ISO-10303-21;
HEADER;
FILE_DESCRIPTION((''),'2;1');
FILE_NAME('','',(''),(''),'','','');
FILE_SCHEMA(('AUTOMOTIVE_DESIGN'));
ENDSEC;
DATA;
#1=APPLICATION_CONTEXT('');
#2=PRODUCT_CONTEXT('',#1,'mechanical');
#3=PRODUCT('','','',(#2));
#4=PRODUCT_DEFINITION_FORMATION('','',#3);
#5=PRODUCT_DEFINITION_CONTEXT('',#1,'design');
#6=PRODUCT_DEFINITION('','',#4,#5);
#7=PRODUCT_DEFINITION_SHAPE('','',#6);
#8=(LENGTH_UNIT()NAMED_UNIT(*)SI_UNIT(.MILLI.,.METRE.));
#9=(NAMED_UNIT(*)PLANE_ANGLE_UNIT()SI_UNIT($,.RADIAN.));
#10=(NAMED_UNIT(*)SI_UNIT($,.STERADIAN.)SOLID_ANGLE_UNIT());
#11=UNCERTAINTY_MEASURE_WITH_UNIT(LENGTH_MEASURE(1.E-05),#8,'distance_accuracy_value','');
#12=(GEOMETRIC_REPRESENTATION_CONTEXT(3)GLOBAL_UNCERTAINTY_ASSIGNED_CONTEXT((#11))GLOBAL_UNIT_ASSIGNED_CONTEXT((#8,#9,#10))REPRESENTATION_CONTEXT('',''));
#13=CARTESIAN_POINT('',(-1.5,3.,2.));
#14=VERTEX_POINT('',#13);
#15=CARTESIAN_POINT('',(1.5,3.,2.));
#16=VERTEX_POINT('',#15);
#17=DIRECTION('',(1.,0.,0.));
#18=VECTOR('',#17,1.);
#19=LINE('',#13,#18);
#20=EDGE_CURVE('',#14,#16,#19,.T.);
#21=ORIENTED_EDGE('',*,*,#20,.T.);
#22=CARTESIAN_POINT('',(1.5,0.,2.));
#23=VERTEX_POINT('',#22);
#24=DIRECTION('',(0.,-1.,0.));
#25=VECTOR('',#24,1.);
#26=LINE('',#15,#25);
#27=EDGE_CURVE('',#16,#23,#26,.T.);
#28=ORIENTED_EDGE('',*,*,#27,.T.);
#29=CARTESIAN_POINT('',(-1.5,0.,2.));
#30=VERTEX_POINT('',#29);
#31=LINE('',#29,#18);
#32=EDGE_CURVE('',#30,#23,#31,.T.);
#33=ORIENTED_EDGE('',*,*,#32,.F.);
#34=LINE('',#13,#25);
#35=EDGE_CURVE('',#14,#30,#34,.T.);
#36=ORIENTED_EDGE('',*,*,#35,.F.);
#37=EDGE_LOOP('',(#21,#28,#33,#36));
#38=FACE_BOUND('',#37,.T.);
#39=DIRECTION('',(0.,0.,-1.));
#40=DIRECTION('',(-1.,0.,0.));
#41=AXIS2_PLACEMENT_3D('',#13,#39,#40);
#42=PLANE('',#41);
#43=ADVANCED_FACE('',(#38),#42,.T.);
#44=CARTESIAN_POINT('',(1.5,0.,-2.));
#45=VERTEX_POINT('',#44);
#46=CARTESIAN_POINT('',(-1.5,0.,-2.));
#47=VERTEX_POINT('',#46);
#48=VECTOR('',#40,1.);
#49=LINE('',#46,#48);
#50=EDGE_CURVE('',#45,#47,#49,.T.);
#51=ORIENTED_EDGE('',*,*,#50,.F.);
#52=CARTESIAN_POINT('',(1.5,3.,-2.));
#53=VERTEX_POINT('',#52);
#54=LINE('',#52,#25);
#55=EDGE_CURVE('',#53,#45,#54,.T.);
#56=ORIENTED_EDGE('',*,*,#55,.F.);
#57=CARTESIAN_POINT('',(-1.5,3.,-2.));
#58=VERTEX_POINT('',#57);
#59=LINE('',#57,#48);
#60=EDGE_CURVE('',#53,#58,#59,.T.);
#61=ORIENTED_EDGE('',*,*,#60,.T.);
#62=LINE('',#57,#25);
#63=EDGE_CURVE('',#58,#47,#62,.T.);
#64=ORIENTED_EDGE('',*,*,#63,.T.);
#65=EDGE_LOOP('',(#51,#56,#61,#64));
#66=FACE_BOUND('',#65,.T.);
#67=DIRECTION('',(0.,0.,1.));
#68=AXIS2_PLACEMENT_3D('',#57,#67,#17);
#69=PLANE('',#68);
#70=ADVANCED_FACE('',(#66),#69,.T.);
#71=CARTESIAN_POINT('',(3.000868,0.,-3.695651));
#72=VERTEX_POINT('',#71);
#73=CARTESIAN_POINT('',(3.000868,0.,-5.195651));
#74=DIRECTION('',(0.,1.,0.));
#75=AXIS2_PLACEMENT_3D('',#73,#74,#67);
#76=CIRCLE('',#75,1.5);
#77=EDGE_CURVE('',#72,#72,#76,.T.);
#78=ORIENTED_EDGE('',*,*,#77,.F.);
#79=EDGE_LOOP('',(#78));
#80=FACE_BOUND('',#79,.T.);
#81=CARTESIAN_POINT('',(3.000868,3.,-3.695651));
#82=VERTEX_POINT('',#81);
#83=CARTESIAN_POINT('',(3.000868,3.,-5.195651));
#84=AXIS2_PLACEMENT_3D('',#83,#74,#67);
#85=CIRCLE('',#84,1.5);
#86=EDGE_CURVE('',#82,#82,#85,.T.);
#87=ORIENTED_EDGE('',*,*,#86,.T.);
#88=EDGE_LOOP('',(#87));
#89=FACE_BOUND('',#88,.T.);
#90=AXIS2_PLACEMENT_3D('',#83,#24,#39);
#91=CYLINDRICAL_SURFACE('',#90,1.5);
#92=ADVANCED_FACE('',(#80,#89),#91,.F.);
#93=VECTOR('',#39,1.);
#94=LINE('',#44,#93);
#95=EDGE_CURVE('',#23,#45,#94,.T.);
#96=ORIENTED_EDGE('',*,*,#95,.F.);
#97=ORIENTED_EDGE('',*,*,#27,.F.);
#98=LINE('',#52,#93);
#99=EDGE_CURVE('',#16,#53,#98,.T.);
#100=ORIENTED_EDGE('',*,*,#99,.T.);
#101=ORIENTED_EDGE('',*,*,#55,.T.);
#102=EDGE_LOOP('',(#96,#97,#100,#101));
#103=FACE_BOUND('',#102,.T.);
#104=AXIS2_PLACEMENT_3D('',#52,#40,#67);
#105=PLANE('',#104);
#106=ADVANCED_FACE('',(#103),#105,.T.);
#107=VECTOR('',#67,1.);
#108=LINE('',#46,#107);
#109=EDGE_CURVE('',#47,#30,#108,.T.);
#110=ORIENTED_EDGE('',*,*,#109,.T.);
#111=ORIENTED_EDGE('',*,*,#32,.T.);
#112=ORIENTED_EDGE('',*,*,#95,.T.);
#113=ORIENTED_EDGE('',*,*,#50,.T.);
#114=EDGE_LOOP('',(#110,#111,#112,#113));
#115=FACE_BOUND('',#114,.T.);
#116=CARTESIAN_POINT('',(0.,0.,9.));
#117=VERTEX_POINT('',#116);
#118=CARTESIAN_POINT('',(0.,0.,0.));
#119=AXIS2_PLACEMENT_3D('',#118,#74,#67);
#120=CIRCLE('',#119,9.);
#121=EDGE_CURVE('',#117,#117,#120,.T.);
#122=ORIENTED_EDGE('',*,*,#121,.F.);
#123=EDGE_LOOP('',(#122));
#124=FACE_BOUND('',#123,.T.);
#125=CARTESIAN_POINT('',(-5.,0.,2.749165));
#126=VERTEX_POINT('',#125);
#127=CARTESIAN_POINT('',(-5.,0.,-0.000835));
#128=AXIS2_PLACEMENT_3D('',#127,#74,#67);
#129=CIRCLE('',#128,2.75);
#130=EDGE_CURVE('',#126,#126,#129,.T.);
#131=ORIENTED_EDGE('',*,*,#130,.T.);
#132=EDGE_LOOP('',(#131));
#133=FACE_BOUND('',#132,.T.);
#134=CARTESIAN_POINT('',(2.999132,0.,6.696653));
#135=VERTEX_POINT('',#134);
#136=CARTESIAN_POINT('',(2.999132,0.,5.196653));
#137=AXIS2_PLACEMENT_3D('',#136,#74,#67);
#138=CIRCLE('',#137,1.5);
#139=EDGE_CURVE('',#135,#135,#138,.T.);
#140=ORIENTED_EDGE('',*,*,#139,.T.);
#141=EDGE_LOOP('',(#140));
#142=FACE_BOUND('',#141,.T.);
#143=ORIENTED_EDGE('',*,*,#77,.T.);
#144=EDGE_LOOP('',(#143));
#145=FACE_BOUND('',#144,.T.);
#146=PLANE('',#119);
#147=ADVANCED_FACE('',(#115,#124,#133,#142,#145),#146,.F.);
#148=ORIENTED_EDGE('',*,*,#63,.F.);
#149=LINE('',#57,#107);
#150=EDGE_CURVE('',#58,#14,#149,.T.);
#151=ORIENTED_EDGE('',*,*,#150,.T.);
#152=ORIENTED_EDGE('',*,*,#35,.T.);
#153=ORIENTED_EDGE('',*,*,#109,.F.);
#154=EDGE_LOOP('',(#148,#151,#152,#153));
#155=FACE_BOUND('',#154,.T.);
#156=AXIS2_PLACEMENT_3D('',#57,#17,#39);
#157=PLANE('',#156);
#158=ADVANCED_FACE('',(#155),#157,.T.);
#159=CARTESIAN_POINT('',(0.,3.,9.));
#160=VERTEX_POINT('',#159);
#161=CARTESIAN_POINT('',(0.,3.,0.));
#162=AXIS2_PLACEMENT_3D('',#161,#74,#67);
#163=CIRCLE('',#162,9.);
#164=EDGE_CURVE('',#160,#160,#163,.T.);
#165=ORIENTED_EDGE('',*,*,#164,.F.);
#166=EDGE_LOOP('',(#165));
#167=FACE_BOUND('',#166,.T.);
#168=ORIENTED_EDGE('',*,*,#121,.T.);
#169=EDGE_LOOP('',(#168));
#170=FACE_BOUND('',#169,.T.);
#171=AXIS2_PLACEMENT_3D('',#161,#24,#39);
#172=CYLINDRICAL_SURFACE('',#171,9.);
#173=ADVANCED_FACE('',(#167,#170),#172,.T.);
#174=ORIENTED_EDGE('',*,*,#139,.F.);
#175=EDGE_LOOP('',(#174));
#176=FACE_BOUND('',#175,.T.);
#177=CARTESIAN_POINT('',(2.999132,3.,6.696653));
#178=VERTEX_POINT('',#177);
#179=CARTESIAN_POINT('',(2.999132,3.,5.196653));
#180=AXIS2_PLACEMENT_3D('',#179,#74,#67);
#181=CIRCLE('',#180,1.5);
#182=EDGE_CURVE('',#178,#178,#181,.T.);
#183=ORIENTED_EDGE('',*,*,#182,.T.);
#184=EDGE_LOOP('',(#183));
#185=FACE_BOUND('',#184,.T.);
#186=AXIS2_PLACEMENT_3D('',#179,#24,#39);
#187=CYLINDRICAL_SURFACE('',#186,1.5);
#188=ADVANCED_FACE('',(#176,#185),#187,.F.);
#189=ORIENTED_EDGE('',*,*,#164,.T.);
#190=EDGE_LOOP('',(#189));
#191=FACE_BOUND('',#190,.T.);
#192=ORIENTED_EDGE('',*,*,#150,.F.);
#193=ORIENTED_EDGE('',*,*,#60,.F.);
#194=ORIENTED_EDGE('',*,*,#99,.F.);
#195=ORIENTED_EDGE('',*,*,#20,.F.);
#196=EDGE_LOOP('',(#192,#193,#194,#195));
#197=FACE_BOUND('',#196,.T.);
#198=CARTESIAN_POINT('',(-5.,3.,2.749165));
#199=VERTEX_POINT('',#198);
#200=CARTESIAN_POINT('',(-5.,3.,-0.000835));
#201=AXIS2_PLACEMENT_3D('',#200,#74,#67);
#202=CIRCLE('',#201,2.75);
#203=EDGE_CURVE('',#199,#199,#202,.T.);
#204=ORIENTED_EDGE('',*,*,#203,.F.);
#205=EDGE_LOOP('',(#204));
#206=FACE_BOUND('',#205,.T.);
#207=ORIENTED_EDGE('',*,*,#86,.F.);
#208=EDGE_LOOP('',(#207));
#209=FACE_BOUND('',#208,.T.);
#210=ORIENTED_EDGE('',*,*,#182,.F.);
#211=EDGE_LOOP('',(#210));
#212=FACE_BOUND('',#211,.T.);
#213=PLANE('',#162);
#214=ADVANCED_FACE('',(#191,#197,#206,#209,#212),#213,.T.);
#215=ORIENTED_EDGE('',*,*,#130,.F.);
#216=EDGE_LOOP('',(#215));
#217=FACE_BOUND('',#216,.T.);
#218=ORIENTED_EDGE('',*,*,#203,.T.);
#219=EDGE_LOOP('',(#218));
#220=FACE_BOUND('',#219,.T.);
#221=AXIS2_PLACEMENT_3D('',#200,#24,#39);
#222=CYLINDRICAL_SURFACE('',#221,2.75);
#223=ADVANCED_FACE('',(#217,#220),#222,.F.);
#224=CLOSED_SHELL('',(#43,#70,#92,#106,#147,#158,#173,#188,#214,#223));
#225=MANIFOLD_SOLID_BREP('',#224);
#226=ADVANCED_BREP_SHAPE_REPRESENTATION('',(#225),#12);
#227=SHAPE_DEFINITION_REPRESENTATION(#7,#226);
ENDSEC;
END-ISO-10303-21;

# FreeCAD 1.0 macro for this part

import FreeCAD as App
import Part
import Sketcher
Q = App.Units.Quantity


def add_polygon(sketch, points):
    """Adds a closed chain of lines whose ends are joined by coincident constraints."""
    first, n = sketch.GeometryCount, len(points)
    for a, b in zip(points, points[1:] + points[:1]):
        sketch.addGeometry(Part.LineSegment(App.Vector(*a, 0), App.Vector(*b, 0)), False)
    for i in range(n):
        sketch.addConstraint(Sketcher.Constraint("Coincident", first + i, 2, first + (i + 1) % n, 1))

doc = App.newDocument("Part")
params = doc.addObject("Spreadsheet::Sheet", "Params")
for row, (alias, value) in enumerate([
    ("sketch1_diameter", "18 mm"),
    ("sketch1_diameter2", "3 mm"),
    ("sketch1_diameter3", "5.5 mm"),
    ("sketch1_width", "3 mm"),
    ("sketch1_height", "4 mm"),
    ("pad1_length", "3 mm"),
], start=1):
    params.set(f"A{row}", alias)
    params.set(f"B{row}", "=" + value)
    params.setAlias(f"B{row}", alias)

body = doc.addObject("PartDesign::Body", "Body")

# Sketch on XZ plane
sketch1 = body.newObject("Sketcher::SketchObject", "Sketch")
sketch1.AttachmentSupport = (doc.getObject("XZ_Plane"), [""])
sketch1.MapMode = "FlatFace"
sketch1.addGeometry(Part.Circle(App.Vector(0, 0, 0), App.Vector(0, 0, 1), 9), False)  # 0
sketch1.addGeometry(Part.Circle(App.Vector(3, 5.2, 0), App.Vector(0, 0, 1), 1.5), False)  # 1
sketch1.addGeometry(Part.Circle(App.Vector(-5, 0, 0), App.Vector(0, 0, 1), 2.8), False)  # 2
add_polygon(sketch1, [(1.5, 2), (-1.5, 2), (-1.5, -2), (1.5, -2)])  # lines 3-6
sketch1.addGeometry(Part.Circle(App.Vector(3, -5.2, 0), App.Vector(0, 0, 1), 1.5), False)  # 7
sketch1.addConstraint(Sketcher.Constraint("Horizontal", 3))
sketch1.addConstraint(Sketcher.Constraint("Vertical", 4))
sketch1.addConstraint(Sketcher.Constraint("Horizontal", 5))
sketch1.addConstraint(Sketcher.Constraint("Vertical", 6))
sketch1.addConstraint(Sketcher.Constraint("Coincident", 0, 3, -1, 1))
sketch1.addConstraint(Sketcher.Constraint("Equal", 1, 7))
sketch1.addConstraint(Sketcher.Constraint("Symmetric", 3, 2, 5, 2, -1, 1))
sketch1.addConstraint(Sketcher.Constraint("Diameter", 0, Q("18 mm")))
sketch1.addConstraint(Sketcher.Constraint("Diameter", 1, Q("3 mm")))
sketch1.addConstraint(Sketcher.Constraint("Diameter", 2, Q("5.5 mm")))
sketch1.addConstraint(Sketcher.Constraint("DistanceX", 3, 2, 3, 1, Q("3 mm")))
sketch1.addConstraint(Sketcher.Constraint("DistanceY", 4, 2, 4, 1, Q("4 mm")))
sketch1.addConstraint(Sketcher.Constraint("DistanceX", 2, 3, -1, 1, Q("5 mm")))
sketch1.addConstraint(Sketcher.Constraint("DistanceX", -1, 1, 1, 3, Q("2.999132 mm")))
sketch1.addConstraint(Sketcher.Constraint("DistanceY", 7, 3, -1, 1, Q("5.195651 mm")))
sketch1.addConstraint(Sketcher.Constraint("DistanceY", 2, 3, 1, 3, Q("5.197489 mm")))
sketch1.addConstraint(Sketcher.Constraint("DistanceY", -1, 1, 1, 3, Q("5.196653 mm")))
sketch1.addConstraint(Sketcher.Constraint("DistanceX", -1, 1, 7, 3, Q("3.000868 mm")))
sketch1.setExpression("Constraints[11]", "Params.sketch1_diameter")
sketch1.setExpression("Constraints[12]", "Params.sketch1_diameter2")
sketch1.setExpression("Constraints[13]", "Params.sketch1_diameter3")
sketch1.setExpression("Constraints[14]", "Params.sketch1_width")
sketch1.setExpression("Constraints[15]", "Params.sketch1_height")
pad1 = body.newObject("PartDesign::Pad", "Pad")
pad1.Profile = sketch1
pad1.setExpression("Length", "Params.pad1_length")
pad1.Reversed = True

doc.recompute()
